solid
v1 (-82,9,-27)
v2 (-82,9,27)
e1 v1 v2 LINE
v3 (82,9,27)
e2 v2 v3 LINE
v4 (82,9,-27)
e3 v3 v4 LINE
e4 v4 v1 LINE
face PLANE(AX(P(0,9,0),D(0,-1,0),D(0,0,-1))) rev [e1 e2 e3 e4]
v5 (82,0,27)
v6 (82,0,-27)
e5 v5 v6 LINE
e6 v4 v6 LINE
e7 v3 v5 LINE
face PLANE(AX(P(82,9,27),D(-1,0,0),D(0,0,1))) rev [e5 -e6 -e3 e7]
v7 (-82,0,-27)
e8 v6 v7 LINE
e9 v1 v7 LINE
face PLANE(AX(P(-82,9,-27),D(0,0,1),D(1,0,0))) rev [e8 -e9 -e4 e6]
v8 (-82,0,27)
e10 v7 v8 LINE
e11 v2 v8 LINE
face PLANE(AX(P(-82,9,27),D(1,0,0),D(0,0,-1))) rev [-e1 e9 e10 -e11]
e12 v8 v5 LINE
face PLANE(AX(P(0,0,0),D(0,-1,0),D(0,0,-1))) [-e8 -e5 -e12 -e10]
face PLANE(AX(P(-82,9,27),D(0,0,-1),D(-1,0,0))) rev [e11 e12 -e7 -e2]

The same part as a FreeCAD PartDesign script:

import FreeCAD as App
import Part
import Sketcher

V = App.Vector

doc = App.newDocument("Part")
body = doc.addObject("PartDesign::Body", "Body")

# Sketch on XZ plane
sketch1 = body.newObject("Sketcher::SketchObject", "Sketch")
sketch1.AttachmentSupport = (doc.getObject("XZ_Plane"), [""])
sketch1.MapMode = "FlatFace"
sketch1.addGeometry(Part.LineSegment(V(-82, -27, 0), V(-82, 27, 0)), False)
sketch1.addGeometry(Part.LineSegment(V(-82, 27, 0), V(82, 27, 0)), False)
sketch1.addGeometry(Part.LineSegment(V(82, 27, 0), V(82, -27, 0)), False)
sketch1.addGeometry(Part.LineSegment(V(82, -27, 0), V(-82, -27, 0)), False)
sketch1.addConstraint(Sketcher.Constraint("Coincident", 0, 2, 1, 1))
sketch1.addConstraint(Sketcher.Constraint("Coincident", 1, 2, 2, 1))
sketch1.addConstraint(Sketcher.Constraint("Coincident", 2, 2, 3, 1))
sketch1.addConstraint(Sketcher.Constraint("Coincident", 3, 2, 0, 1))
sketch1.addConstraint(Sketcher.Constraint("Vertical", 0))
sketch1.addConstraint(Sketcher.Constraint("Horizontal", 1))
sketch1.addConstraint(Sketcher.Constraint("Vertical", 2))
sketch1.addConstraint(Sketcher.Constraint("Horizontal", 3))
sketch1.addConstraint(Sketcher.Constraint("Symmetric", 0, 2, 2, 2, -1, 1))
sketch1.addConstraint(Sketcher.Constraint("DistanceX", 1, 1, 1, 2, 164.0))
sketch1.addConstraint(Sketcher.Constraint("DistanceY", 0, 1, 0, 2, 54.0))
pad1 = body.newObject("PartDesign::Pad", "Pad")
pad1.Profile = sketch1
pad1.Length = 9
pad1.Reversed = True

doc.recompute()
